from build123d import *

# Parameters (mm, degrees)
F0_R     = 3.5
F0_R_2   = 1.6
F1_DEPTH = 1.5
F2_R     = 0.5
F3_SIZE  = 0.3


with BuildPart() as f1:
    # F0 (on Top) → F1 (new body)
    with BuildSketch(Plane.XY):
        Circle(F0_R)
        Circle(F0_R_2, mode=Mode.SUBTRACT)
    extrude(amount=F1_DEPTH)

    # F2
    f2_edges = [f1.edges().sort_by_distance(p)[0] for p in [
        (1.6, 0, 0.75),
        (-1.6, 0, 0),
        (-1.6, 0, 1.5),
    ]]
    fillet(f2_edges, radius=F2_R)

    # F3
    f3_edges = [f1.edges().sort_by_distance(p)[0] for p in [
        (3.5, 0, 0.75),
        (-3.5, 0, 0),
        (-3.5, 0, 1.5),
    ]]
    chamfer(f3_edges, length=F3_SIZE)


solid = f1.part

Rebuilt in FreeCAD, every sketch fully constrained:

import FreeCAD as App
import Part
import Sketcher

V = App.Vector
Q = App.Units.Quantity


def edges_at(feature, points):
    """Names of the edges that pass closest to the given points."""
    edges = feature.Shape.Edges
    near = lambda p: min(range(len(edges)), key=lambda i: edges[i].distToShape(Part.Vertex(*p))[0])
    return sorted({f"Edge{near(p) + 1}" for p in points})

doc = App.newDocument("Part")
body = doc.addObject("PartDesign::Body", "Body")

sketch1 = body.newObject("Sketcher::SketchObject", "Sketch")
sketch1.AttachmentSupport = (doc.getObject("XY_Plane"), [""])
sketch1.MapMode = "FlatFace"
sketch1.addGeometry(Part.Circle(V(0, 0, 0), V(0, 0, 1), 3.5), False)
sketch1.addGeometry(Part.Circle(V(0, 0, 0), V(0, 0, 1), 1.6), False)
sketch1.addConstraint(Sketcher.Constraint("Coincident", 0, 3, -1, 1))
sketch1.addConstraint(Sketcher.Constraint("Coincident", 1, 3, -1, 1))
sketch1.addConstraint(Sketcher.Constraint("Diameter", 0, Q("7 mm")))
sketch1.addConstraint(Sketcher.Constraint("Diameter", 1, Q("3.2 mm")))
pad1 = body.newObject("PartDesign::Pad", "Pad")
pad1.Profile = sketch1
pad1.Length = 1.5
doc.recompute()

fillet = body.newObject("PartDesign::Fillet", "Fillet")
fillet.Base = (pad1, edges_at(pad1, [(1.6, 0, 0.75), (-1.6, 0, 0), (-1.6, 0, 1.5)]))
fillet.Radius = 0.5
doc.recompute()

chamfer = body.newObject("PartDesign::Chamfer", "Chamfer")
chamfer.Base = (fillet, edges_at(fillet, [(3.5, 0, 0.75), (-3.5, 0, 0), (-3.5, 0, 1.5)]))
chamfer.Size = 0.3

doc.recompute()
